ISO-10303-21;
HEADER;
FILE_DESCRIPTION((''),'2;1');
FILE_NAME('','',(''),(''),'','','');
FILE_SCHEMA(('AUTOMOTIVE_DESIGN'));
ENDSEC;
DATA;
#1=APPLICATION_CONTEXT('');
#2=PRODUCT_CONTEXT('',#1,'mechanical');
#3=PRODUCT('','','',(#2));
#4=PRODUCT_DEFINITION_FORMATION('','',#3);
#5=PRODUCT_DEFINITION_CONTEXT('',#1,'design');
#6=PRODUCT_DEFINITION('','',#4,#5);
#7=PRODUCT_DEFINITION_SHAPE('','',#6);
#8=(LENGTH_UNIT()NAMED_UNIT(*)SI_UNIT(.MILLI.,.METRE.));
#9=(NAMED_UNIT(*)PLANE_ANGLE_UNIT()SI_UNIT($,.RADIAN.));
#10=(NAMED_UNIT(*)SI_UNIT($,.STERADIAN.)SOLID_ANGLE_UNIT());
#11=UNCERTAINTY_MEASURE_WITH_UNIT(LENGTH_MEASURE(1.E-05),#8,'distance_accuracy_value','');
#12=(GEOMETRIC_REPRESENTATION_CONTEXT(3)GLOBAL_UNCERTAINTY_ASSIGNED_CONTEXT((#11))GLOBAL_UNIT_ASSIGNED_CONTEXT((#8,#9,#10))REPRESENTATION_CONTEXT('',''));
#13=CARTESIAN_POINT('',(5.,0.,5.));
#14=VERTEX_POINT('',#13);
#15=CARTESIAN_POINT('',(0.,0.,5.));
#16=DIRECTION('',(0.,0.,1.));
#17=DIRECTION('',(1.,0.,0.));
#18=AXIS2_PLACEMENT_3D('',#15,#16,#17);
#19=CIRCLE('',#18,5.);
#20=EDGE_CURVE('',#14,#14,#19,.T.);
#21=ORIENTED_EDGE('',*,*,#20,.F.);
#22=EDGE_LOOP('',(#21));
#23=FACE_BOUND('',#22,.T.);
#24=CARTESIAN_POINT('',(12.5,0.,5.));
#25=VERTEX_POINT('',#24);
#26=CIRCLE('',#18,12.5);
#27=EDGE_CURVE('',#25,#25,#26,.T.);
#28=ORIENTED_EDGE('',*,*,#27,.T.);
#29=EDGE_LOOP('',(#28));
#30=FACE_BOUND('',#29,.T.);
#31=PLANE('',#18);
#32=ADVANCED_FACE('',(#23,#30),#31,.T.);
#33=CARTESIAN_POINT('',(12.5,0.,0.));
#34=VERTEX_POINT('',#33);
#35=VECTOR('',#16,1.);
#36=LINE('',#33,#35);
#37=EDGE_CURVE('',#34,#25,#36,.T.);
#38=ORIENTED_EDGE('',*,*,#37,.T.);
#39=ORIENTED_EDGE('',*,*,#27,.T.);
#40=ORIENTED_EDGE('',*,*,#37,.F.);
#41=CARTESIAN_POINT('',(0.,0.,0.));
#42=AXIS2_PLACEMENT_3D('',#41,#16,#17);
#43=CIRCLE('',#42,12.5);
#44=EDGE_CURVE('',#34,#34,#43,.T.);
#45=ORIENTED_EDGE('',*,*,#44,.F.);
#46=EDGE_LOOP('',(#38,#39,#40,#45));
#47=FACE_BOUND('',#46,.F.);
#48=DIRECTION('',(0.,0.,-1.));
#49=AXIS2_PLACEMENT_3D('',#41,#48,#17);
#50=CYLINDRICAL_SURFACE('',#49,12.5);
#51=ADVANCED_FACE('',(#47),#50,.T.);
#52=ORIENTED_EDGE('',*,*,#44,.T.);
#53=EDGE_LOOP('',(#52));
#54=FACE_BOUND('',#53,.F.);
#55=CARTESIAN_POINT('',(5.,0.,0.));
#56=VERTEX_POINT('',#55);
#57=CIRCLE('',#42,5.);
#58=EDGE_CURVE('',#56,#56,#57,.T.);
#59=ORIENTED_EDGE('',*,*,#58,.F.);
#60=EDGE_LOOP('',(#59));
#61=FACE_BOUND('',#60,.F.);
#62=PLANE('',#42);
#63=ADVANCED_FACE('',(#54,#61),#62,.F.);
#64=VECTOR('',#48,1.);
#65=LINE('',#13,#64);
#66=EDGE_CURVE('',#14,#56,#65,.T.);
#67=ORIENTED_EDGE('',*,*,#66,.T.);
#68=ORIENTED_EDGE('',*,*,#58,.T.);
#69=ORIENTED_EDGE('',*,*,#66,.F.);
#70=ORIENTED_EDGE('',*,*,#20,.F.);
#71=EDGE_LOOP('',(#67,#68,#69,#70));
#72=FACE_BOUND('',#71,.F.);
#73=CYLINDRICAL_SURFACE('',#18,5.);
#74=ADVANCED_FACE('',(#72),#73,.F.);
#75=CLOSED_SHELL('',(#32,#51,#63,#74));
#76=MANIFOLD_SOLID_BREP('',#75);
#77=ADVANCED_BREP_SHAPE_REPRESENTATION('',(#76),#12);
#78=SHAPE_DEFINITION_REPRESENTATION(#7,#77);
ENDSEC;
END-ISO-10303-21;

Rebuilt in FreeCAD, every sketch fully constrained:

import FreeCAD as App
import Part
import Sketcher

V = App.Vector
Q = App.Units.Quantity

doc = App.newDocument("Part")
params = doc.addObject("Spreadsheet::Sheet", "Params")
for row, (alias, value) in enumerate([
    ("sketch1_diameter", "25 mm"),
    ("pad1_length", "5 mm"),
    ("sketch2_diameter", "10 mm"),
], start=1):
    params.set(f"A{row}", alias)
    params.set(f"B{row}", "=" + value)
    params.setAlias(f"B{row}", alias)

body = doc.addObject("PartDesign::Body", "Body")

sketch1 = body.newObject("Sketcher::SketchObject", "Sketch")
sketch1.AttachmentSupport = (doc.getObject("XY_Plane"), [""])
sketch1.MapMode = "FlatFace"
sketch1.addGeometry(Part.Circle(V(0, 0, 0), V(0, 0, 1), 12), False)
sketch1.addConstraint([
    Sketcher.Constraint("Coincident", 0, 3, -1, 1),
    Sketcher.Constraint("Diameter", 0, Q("25 mm")),
])
sketch1.setExpression("Constraints[1]", "Params.sketch1_diameter")
pad1 = body.newObject("PartDesign::Pad", "Pad")
pad1.Profile = sketch1
pad1.setExpression("Length", "Params.pad1_length")

sketch2 = body.newObject("Sketcher::SketchObject", "Sketch001")
sketch2.AttachmentSupport = (doc.getObject("XY_Plane"), [""])
sketch2.MapMode = "FlatFace"
sketch2.AttachmentOffset = App.Placement(V(0, 0, 5), App.Rotation())
sketch2.addGeometry(Part.Circle(V(0, 0, 0), V(0, 0, 1), 5), False)
sketch2.addConstraint([
    Sketcher.Constraint("Coincident", 0, 3, -1, 1),
    Sketcher.Constraint("Diameter", 0, Q("10 mm")),
])
sketch2.setExpression("Constraints[1]", "Params.sketch2_diameter")
pocket1 = body.newObject("PartDesign::Pocket", "Pocket")
pocket1.Profile = sketch2
pocket1.Type = "ThroughAll"

doc.recompute()
